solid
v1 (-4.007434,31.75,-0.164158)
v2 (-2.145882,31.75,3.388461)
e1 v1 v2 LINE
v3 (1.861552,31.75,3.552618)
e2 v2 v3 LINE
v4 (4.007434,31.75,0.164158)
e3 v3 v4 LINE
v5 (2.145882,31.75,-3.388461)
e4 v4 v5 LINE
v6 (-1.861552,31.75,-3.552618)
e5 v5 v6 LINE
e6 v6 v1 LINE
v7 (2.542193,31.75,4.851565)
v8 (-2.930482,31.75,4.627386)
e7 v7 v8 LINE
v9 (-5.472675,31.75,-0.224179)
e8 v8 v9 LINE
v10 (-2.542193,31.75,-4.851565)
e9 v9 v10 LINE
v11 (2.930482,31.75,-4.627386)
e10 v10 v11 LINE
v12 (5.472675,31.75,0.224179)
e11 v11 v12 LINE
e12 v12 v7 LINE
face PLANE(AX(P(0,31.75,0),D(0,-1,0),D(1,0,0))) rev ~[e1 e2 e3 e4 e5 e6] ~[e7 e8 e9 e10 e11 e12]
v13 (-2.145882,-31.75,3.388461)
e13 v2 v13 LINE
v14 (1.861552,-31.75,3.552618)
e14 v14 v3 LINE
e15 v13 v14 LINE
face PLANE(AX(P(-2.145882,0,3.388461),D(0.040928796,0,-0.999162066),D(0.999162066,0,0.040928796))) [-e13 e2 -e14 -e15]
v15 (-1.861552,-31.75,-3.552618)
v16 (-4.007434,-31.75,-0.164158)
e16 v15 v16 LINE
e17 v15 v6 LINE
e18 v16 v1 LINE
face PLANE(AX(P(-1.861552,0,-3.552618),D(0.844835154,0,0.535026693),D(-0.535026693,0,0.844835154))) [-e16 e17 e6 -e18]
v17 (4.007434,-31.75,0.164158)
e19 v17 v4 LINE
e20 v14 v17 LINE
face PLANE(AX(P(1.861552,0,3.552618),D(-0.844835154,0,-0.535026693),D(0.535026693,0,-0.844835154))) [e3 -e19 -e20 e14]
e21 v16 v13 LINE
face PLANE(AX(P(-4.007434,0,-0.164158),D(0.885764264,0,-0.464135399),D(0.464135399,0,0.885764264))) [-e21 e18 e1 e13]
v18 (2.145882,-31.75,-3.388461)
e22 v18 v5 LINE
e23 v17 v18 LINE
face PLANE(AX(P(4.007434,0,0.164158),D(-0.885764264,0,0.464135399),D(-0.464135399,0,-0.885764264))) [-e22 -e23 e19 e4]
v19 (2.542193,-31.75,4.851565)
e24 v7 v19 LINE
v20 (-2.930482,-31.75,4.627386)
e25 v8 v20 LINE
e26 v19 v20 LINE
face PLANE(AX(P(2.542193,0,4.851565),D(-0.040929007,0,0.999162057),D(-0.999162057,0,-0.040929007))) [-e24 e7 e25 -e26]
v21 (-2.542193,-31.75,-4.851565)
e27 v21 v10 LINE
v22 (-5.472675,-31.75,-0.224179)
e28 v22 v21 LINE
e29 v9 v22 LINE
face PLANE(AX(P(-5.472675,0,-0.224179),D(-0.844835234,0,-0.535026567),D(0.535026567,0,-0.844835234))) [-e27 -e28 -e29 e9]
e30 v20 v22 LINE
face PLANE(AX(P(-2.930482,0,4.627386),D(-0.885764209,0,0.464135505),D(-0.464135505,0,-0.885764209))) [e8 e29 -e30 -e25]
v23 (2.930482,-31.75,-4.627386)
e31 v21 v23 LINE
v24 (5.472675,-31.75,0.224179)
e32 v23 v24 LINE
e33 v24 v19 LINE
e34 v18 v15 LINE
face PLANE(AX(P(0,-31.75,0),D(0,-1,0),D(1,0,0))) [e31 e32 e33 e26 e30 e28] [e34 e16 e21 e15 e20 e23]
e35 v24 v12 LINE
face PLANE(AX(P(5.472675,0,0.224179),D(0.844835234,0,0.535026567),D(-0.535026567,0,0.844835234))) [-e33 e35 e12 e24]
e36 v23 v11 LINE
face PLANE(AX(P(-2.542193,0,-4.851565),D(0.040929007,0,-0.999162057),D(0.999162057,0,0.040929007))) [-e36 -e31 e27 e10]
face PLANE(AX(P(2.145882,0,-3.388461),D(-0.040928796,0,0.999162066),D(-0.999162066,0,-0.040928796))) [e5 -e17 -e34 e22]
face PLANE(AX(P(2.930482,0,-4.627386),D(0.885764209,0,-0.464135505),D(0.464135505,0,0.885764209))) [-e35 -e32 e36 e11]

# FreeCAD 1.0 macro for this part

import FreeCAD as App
import Part
import Sketcher
Q = App.Units.Quantity


def add_polygon(sketch, points):
    """Adds a closed chain of lines whose ends are joined by coincident constraints."""
    first, n = sketch.GeometryCount, len(points)
    for a, b in zip(points, points[1:] + points[:1]):
        sketch.addGeometry(Part.LineSegment(App.Vector(*a, 0), App.Vector(*b, 0)), False)
    for i in range(n):
        sketch.addConstraint(Sketcher.Constraint("Coincident", first + i, 2, first + (i + 1) % n, 1))

doc = App.newDocument("Part")
body = doc.addObject("PartDesign::Body", "Body")

sketch1 = body.newObject("Sketcher::SketchObject", "Sketch")
sketch1.AttachmentSupport = (doc.getObject("XZ_Plane"), [""])
sketch1.MapMode = "FlatFace"
add_polygon(sketch1, [(5.5, 0.2), (2.5, 4.9), (-2.9, 4.6), (-5.5, -0.2), (-2.5, -4.9), (2.9, -4.6)])
add_polygon(sketch1, [(-4, -0.2), (-2.1, 3.4), (1.9, 3.6), (4, 0.2), (2.1, -3.4), (-1.9, -3.6)])
sketch1.addConstraint([
    Sketcher.Constraint("Symmetric", 0, 2, 3, 2, -1, 1),
    Sketcher.Constraint("Symmetric", 1, 2, 4, 2, -1, 1),
    Sketcher.Constraint("Symmetric", 2, 2, 5, 2, -1, 1),
    Sketcher.Constraint("Symmetric", 6, 2, 9, 2, -1, 1),
    Sketcher.Constraint("Symmetric", 7, 2, 10, 2, -1, 1),
    Sketcher.Constraint("Symmetric", 8, 2, 11, 2, -1, 1),
    Sketcher.Constraint("Parallel", 5, 6),
    Sketcher.Constraint("Parallel", 4, 7),
    Sketcher.Constraint("Parallel", 3, 8),
    Sketcher.Constraint("Equal", 0, 1),
    Sketcher.Constraint("Equal", 1, 2),
    Sketcher.Constraint("Equal", 6, 7),
    Sketcher.Constraint("Equal", 7, 8),
    Sketcher.Constraint("DistanceX", 1, 2, 6, 2, 0.7846),
    Sketcher.Constraint("DistanceX", 1, 2, -1, 1, 2.930482),
    Sketcher.Constraint("DistanceY", 2, 2, -1, 1, 0.224179),
    Sketcher.Constraint("DistanceY", -1, 1, 6, 2, 3.388461),
    Sketcher.Constraint("DistanceY", 1, 2, 0, 2, 0.224179),
])
pad1 = body.newObject("PartDesign::Pad", "Pad")
pad1.Profile = sketch1
pad1.Length = Q("2.5 in")
pad1.Midplane = True

doc.recompute()
